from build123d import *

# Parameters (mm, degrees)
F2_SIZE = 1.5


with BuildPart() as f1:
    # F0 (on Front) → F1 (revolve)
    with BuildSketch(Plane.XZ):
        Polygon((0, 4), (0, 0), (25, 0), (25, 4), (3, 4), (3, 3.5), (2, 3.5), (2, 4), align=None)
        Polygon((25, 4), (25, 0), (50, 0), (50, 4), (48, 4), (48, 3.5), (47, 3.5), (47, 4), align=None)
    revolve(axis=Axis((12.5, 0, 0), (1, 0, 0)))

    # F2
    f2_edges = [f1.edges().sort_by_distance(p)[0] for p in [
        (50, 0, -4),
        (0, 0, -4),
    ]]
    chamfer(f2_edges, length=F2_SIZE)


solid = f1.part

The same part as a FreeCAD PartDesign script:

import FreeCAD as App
import Part
import Sketcher

V = App.Vector
Q = App.Units.Quantity


def edges_at(feature, points):
    """Names of the edges that pass closest to the given points."""
    edges = feature.Shape.Edges
    near = lambda p: min(range(len(edges)), key=lambda i: edges[i].distToShape(Part.Vertex(*p))[0])
    return sorted({f"Edge{near(p) + 1}" for p in points})


def add_polygon(sketch, points):
    """Adds a closed chain of lines whose ends are joined by coincident constraints."""
    first, n = sketch.GeometryCount, len(points)
    for a, b in zip(points, points[1:] + points[:1]):
        sketch.addGeometry(Part.LineSegment(App.Vector(*a, 0), App.Vector(*b, 0)), False)
    for i in range(n):
        sketch.addConstraint(Sketcher.Constraint("Coincident", first + i, 2, first + (i + 1) % n, 1))

doc = App.newDocument("Part")
body = doc.addObject("PartDesign::Body", "Body")

sketch1 = body.newObject("Sketcher::SketchObject", "Sketch")
sketch1.AttachmentSupport = (doc.getObject("XZ_Plane"), [""])
sketch1.MapMode = "FlatFace"
add_polygon(sketch1, [(0, 4), (0, 0), (50, 0), (50, 4), (48, 4), (48, 3.5), (47, 3.5), (47, 4), (3, 4), (3, 3.5), (2, 3.5), (2, 4)])
sketch1.addConstraint(Sketcher.Constraint("Vertical", 0))
sketch1.addConstraint(Sketcher.Constraint("Horizontal", 1))
sketch1.addConstraint(Sketcher.Constraint("Vertical", 2))
sketch1.addConstraint(Sketcher.Constraint("Horizontal", 3))
sketch1.addConstraint(Sketcher.Constraint("Vertical", 4))
sketch1.addConstraint(Sketcher.Constraint("Horizontal", 5))
sketch1.addConstraint(Sketcher.Constraint("Vertical", 6))
sketch1.addConstraint(Sketcher.Constraint("Horizontal", 7))
sketch1.addConstraint(Sketcher.Constraint("Vertical", 8))
sketch1.addConstraint(Sketcher.Constraint("Horizontal", 9))
sketch1.addConstraint(Sketcher.Constraint("Vertical", 10))
sketch1.addConstraint(Sketcher.Constraint("Horizontal", 11))
sketch1.addConstraint(Sketcher.Constraint("Coincident", 0, 2, -1, 1))
sketch1.addConstraint(Sketcher.Constraint("Horizontal", 3, 2, 6, 2))
sketch1.addConstraint(Sketcher.Constraint("Horizontal", 5, 2, 8, 2))
sketch1.addConstraint(Sketcher.Constraint("Horizontal", 7, 2, 10, 2))
sketch1.addConstraint(Sketcher.Constraint("Equal", 5, 9))
sketch1.addConstraint(Sketcher.Constraint("Equal", 3, 11))
sketch1.addConstraint(Sketcher.Constraint("DistanceX", 1, 1, 1, 2, Q("50 mm")))
sketch1.addConstraint(Sketcher.Constraint("DistanceX", 3, 2, 3, 1, Q("2 mm")))
sketch1.addConstraint(Sketcher.Constraint("DistanceX", 5, 2, 5, 1, Q("1 mm")))
sketch1.addConstraint(Sketcher.Constraint("DistanceY", 0, 2, 0, 1, Q("4 mm")))
sketch1.addConstraint(Sketcher.Constraint("DistanceY", 4, 2, 4, 1, Q("0.5 mm")))
revolution = body.newObject("PartDesign::Revolution", "Revolution")
revolution.Profile = sketch1
revolution.ReferenceAxis = (sketch1, ["H_Axis"])
revolution.Angle = 360
doc.recompute()

chamfer = body.newObject("PartDesign::Chamfer", "Chamfer")
chamfer.Base = (revolution, edges_at(revolution, [(50, 0, -4), (0, 0, -4)]))
chamfer.Size = 1.5

doc.recompute()
